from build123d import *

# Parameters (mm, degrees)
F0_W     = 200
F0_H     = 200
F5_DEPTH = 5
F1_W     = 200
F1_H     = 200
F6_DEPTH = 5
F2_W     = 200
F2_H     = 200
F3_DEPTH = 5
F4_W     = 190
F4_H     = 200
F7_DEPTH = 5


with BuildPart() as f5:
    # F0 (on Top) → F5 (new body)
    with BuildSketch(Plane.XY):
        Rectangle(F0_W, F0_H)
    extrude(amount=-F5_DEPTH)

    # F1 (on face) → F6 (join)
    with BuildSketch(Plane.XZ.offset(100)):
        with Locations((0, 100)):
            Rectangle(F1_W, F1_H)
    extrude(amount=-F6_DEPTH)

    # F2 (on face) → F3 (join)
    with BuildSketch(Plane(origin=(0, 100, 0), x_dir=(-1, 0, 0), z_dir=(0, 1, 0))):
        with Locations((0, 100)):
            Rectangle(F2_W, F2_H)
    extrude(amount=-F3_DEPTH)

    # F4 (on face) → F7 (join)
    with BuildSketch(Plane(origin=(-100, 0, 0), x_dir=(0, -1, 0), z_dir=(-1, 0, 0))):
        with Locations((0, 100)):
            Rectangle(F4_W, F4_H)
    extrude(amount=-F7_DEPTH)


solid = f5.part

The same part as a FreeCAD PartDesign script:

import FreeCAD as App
import Part
import Sketcher
from FreeCAD import Vector

doc = App.newDocument("Part")
body = doc.addObject("PartDesign::Body", "Body")

# Sketch on XY plane
sketch1 = body.newObject("Sketcher::SketchObject", "Sketch")
sketch1.AttachmentSupport = (doc.getObject("XY_Plane"), [""])
sketch1.MapMode = "FlatFace"
sketch1.addGeometry(Part.LineSegment(Vector(-100, 100, 0), Vector(-100, -100, 0)), False)
sketch1.addGeometry(Part.LineSegment(Vector(-100, -100, 0), Vector(100, -100, 0)), False)
sketch1.addGeometry(Part.LineSegment(Vector(100, -100, 0), Vector(100, 100, 0)), False)
sketch1.addGeometry(Part.LineSegment(Vector(100, 100, 0), Vector(-100, 100, 0)), False)
sketch1.addConstraint(Sketcher.Constraint("Coincident", 0, 2, 1, 1))
sketch1.addConstraint(Sketcher.Constraint("Coincident", 1, 2, 2, 1))
sketch1.addConstraint(Sketcher.Constraint("Coincident", 2, 2, 3, 1))
sketch1.addConstraint(Sketcher.Constraint("Coincident", 3, 2, 0, 1))
sketch1.addConstraint(Sketcher.Constraint("Vertical", 0))
sketch1.addConstraint(Sketcher.Constraint("Horizontal", 1))
sketch1.addConstraint(Sketcher.Constraint("Vertical", 2))
sketch1.addConstraint(Sketcher.Constraint("Horizontal", 3))
sketch1.addConstraint(Sketcher.Constraint("Symmetric", 0, 2, 2, 2, -1, 1))
sketch1.addConstraint(Sketcher.Constraint("Equal", 3, 0))
sketch1.addConstraint(Sketcher.Constraint("DistanceX", 1, 1, 1, 2, 200.0))
pad1 = body.newObject("PartDesign::Pad", "Pad")
pad1.Profile = sketch1
pad1.Length = 5
pad1.Reversed = True

# Sketch on XZ plane
sketch2 = body.newObject("Sketcher::SketchObject", "Sketch001")
sketch2.AttachmentSupport = (doc.getObject("XZ_Plane"), [""])
sketch2.MapMode = "FlatFace"
sketch2.AttachmentOffset = App.Placement(Vector(0, 0, 100), App.Rotation())
sketch2.addGeometry(Part.LineSegment(Vector(-100, 200, 0), Vector(-100, 0, 0)), False)
sketch2.addGeometry(Part.LineSegment(Vector(-100, 0, 0), Vector(100, 0, 0)), False)
sketch2.addGeometry(Part.LineSegment(Vector(100, 0, 0), Vector(100, 200, 0)), False)
sketch2.addGeometry(Part.LineSegment(Vector(100, 200, 0), Vector(-100, 200, 0)), False)
sketch2.addConstraint(Sketcher.Constraint("Coincident", 0, 2, 1, 1))
sketch2.addConstraint(Sketcher.Constraint("Coincident", 1, 2, 2, 1))
sketch2.addConstraint(Sketcher.Constraint("Coincident", 2, 2, 3, 1))
sketch2.addConstraint(Sketcher.Constraint("Coincident", 3, 2, 0, 1))
sketch2.addConstraint(Sketcher.Constraint("Vertical", 0))
sketch2.addConstraint(Sketcher.Constraint("Horizontal", 1))
sketch2.addConstraint(Sketcher.Constraint("Vertical", 2))
sketch2.addConstraint(Sketcher.Constraint("Horizontal", 3))
sketch2.addConstraint(Sketcher.Constraint("Symmetric", 0, 2, 1, 2, -1, 1))
sketch2.addConstraint(Sketcher.Constraint("Equal", 3, 0))
sketch2.addConstraint(Sketcher.Constraint("DistanceX", 1, 1, 1, 2, 200.0))
pad2 = body.newObject("PartDesign::Pad", "Pad001")
pad2.Profile = sketch2
pad2.Length = 5
pad2.Reversed = True

# Sketch on XZ plane
sketch3 = body.newObject("Sketcher::SketchObject", "Sketch002")
sketch3.AttachmentSupport = (doc.getObject("XZ_Plane"), [""])
sketch3.MapMode = "FlatFace"
sketch3.AttachmentOffset = App.Placement(Vector(0, 0, -100), App.Rotation())
sketch3.addGeometry(Part.LineSegment(Vector(100, 200, 0), Vector(100, 0, 0)), False)
sketch3.addGeometry(Part.LineSegment(Vector(100, 0, 0), Vector(-100, 0, 0)), False)
sketch3.addGeometry(Part.LineSegment(Vector(-100, 0, 0), Vector(-100, 200, 0)), False)
sketch3.addGeometry(Part.LineSegment(Vector(-100, 200, 0), Vector(100, 200, 0)), False)
sketch3.addConstraint(Sketcher.Constraint("Coincident", 0, 2, 1, 1))
sketch3.addConstraint(Sketcher.Constraint("Coincident", 1, 2, 2, 1))
sketch3.addConstraint(Sketcher.Constraint("Coincident", 2, 2, 3, 1))
sketch3.addConstraint(Sketcher.Constraint("Coincident", 3, 2, 0, 1))
sketch3.addConstraint(Sketcher.Constraint("Vertical", 0))
sketch3.addConstraint(Sketcher.Constraint("Horizontal", 1))
sketch3.addConstraint(Sketcher.Constraint("Vertical", 2))
sketch3.addConstraint(Sketcher.Constraint("Horizontal", 3))
sketch3.addConstraint(Sketcher.Constraint("Symmetric", 0, 2, 1, 2, -1, 1))
sketch3.addConstraint(Sketcher.Constraint("Equal", 3, 0))
sketch3.addConstraint(Sketcher.Constraint("DistanceX", 1, 2, 1, 1, 200.0))
pad3 = body.newObject("PartDesign::Pad", "Pad002")
pad3.Profile = sketch3
pad3.Length = 5

# Sketch on YZ plane
sketch4 = body.newObject("Sketcher::SketchObject", "Sketch003")
sketch4.AttachmentSupport = (doc.getObject("YZ_Plane"), [""])
sketch4.MapMode = "FlatFace"
sketch4.AttachmentOffset = App.Placement(Vector(0, 0, -100), App.Rotation())
sketch4.addGeometry(Part.LineSegment(Vector(95, 200, 0), Vector(95, 0, 0)), False)
sketch4.addGeometry(Part.LineSegment(Vector(95, 0, 0), Vector(-95, 0, 0)), False)
sketch4.addGeometry(Part.LineSegment(Vector(-95, 0, 0), Vector(-95, 200, 0)), False)
sketch4.addGeometry(Part.LineSegment(Vector(-95, 200, 0), Vector(95, 200, 0)), False)
sketch4.addConstraint(Sketcher.Constraint("Coincident", 0, 2, 1, 1))
sketch4.addConstraint(Sketcher.Constraint("Coincident", 1, 2, 2, 1))
sketch4.addConstraint(Sketcher.Constraint("Coincident", 2, 2, 3, 1))
sketch4.addConstraint(Sketcher.Constraint("Coincident", 3, 2, 0, 1))
sketch4.addConstraint(Sketcher.Constraint("Vertical", 0))
sketch4.addConstraint(Sketcher.Constraint("Horizontal", 1))
sketch4.addConstraint(Sketcher.Constraint("Vertical", 2))
sketch4.addConstraint(Sketcher.Constraint("Horizontal", 3))
sketch4.addConstraint(Sketcher.Constraint("Symmetric", 0, 2, 1, 2, -1, 1))
sketch4.addConstraint(Sketcher.Constraint("DistanceX", 1, 2, 1, 1, 190.0))
sketch4.addConstraint(Sketcher.Constraint("DistanceY", 0, 2, 0, 1, 200.0))
pad4 = body.newObject("PartDesign::Pad", "Pad003")
pad4.Profile = sketch4
pad4.Length = 5

doc.recompute()
